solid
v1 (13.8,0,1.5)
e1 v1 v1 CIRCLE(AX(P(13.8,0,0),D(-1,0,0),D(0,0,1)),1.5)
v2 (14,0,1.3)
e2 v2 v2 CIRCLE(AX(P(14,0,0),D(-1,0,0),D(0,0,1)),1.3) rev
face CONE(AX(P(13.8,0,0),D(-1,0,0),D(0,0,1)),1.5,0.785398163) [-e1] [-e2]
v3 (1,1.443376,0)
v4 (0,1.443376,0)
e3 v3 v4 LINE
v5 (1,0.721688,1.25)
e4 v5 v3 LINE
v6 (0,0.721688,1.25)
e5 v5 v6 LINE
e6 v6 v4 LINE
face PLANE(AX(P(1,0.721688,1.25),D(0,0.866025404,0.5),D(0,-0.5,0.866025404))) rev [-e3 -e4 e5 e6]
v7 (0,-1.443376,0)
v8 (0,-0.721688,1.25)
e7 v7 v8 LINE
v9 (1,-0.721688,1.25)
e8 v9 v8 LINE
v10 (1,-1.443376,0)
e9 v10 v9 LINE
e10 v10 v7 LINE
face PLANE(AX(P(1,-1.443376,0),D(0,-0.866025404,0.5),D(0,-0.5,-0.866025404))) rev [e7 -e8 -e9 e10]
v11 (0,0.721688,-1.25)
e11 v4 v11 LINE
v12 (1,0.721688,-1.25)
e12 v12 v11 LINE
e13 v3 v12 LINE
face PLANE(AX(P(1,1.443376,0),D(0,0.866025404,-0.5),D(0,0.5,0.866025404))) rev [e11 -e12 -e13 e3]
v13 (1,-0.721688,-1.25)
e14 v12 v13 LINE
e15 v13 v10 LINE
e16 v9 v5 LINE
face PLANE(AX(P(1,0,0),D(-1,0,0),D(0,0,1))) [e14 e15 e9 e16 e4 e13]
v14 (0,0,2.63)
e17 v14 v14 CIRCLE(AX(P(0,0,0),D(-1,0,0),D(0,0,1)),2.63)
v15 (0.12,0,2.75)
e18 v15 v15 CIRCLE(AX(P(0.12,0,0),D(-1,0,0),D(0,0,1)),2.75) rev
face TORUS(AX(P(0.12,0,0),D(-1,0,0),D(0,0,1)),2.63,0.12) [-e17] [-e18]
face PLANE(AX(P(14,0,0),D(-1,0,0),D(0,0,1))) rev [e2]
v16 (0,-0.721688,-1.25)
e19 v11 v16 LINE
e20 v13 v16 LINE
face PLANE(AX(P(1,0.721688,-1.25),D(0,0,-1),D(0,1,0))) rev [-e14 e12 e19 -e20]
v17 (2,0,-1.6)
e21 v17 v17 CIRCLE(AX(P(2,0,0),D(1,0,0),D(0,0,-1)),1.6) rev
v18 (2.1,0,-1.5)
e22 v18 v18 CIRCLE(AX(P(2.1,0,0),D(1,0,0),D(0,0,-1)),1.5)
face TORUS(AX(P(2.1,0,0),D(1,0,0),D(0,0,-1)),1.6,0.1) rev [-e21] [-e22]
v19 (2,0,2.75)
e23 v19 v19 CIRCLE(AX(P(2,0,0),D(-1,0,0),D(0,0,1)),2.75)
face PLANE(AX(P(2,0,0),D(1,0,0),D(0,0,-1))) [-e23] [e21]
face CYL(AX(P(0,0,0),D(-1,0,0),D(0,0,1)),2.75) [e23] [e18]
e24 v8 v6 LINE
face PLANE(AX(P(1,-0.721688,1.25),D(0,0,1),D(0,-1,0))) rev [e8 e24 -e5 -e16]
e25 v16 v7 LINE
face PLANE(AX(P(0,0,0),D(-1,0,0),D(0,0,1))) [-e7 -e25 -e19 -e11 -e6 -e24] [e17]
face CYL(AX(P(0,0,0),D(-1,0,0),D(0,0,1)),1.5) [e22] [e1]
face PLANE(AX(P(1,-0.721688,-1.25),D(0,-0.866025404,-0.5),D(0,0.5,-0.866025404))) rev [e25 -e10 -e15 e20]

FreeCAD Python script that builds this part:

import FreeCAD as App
import Part
import Sketcher

V = App.Vector
Q = App.Units.Quantity


def edges_at(feature, points):
    """Names of the edges that pass closest to the given points."""
    edges = feature.Shape.Edges
    near = lambda p: min(range(len(edges)), key=lambda i: edges[i].distToShape(Part.Vertex(*p))[0])
    return sorted({f"Edge{near(p) + 1}" for p in points})

doc = App.newDocument("Part")
params = doc.addObject("Spreadsheet::Sheet", "Params")
for row, (alias, value) in enumerate([
    ("sketch1_width", "12 mm"),
    ("sketch1_width2", "2 mm"),
    ("sketch1_height", "1.5 mm"),
    ("sketch1_height2", "1.25 mm"),
    ("revolution_angle", "360 deg"),
    ("fillet_radius", "0.1 mm"),
    ("fillet2_radius", "0.12 mm"),
    ("chamfer_size", "0.2 mm"),
    ("pocket1_length", "1 mm"),
], start=1):
    params.set(f"A{row}", alias)
    params.set(f"B{row}", "=" + value)
    params.setAlias(f"B{row}", alias)

body = doc.addObject("PartDesign::Body", "Body")

sketch1 = doc.addObject("Sketcher::SketchObject", "Sketch")
body.addObject(sketch1)
sketch1.AttachmentSupport = (doc.XY_Plane, [""])
sketch1.MapMode = "FlatFace"
sketch1.addGeometry([
    Part.LineSegment(V(14, 0, 0), V(14, 1.5, 0)),
    Part.LineSegment(V(14, 1.5, 0), V(2, 1.5, 0)),
    Part.LineSegment(V(2, 1.5, 0), V(2, 2.8, 0)),
    Part.LineSegment(V(2, 2.8, 0), V(0, 2.8, 0)),
    Part.LineSegment(V(0, 2.8, 0), V(0, 0, 0)),
    Part.LineSegment(V(0, 0, 0), V(14, 0, 0)),
], False)
sketch1.addConstraint([
    Sketcher.Constraint("Coincident", 0, 2, 1, 1),
    Sketcher.Constraint("Coincident", 1, 2, 2, 1),
    Sketcher.Constraint("Coincident", 2, 2, 3, 1),
    Sketcher.Constraint("Coincident", 3, 2, 4, 1),
    Sketcher.Constraint("Coincident", 4, 2, 5, 1),
    Sketcher.Constraint("Coincident", 5, 2, 0, 1),
    Sketcher.Constraint("Vertical", 0),
    Sketcher.Constraint("Horizontal", 1),
    Sketcher.Constraint("Vertical", 2),
    Sketcher.Constraint("Horizontal", 3),
    Sketcher.Constraint("Vertical", 4),
    Sketcher.Constraint("Horizontal", 5),
    Sketcher.Constraint("Coincident", 4, 2, -1, 1),
    Sketcher.Constraint("DistanceX", 1, 2, 1, 1, 12.0),
    Sketcher.Constraint("DistanceX", 3, 2, 3, 1, 2.0),
    Sketcher.Constraint("DistanceY", 0, 1, 0, 2, 1.5),
    Sketcher.Constraint("DistanceY", 2, 1, 2, 2, 1.25),
])
sketch1.setExpression("Constraints[13]", "Params.sketch1_width")
sketch1.setExpression("Constraints[14]", "Params.sketch1_width2")
sketch1.setExpression("Constraints[15]", "Params.sketch1_height")
sketch1.setExpression("Constraints[16]", "Params.sketch1_height2")
revolution = doc.addObject("PartDesign::Revolution", "Revolution")
body.addObject(revolution)
revolution.Profile = sketch1
revolution.ReferenceAxis = (sketch1, ["H_Axis"])
revolution.setExpression("Angle", "Params.revolution_angle")
doc.recompute()

fillet = doc.addObject("PartDesign::Fillet", "Fillet")
body.addObject(fillet)
fillet.Base = (revolution, edges_at(revolution, [(2, 0, -1.5)]))
fillet.setExpression("Radius", "Params.fillet_radius")
doc.recompute()

fillet2 = doc.addObject("PartDesign::Fillet", "Fillet001")
body.addObject(fillet2)
fillet2.Base = (fillet, edges_at(fillet, [(0, 0, -2.75)]))
fillet2.setExpression("Radius", "Params.fillet2_radius")
doc.recompute()

chamfer = doc.addObject("PartDesign::Chamfer", "Chamfer")
body.addObject(chamfer)
chamfer.Base = (fillet2, edges_at(fillet2, [(14, 0, -1.5)]))
chamfer.setExpression("Size", "Params.chamfer_size")

sketch2 = doc.addObject("Sketcher::SketchObject", "Sketch001")
body.addObject(sketch2)
sketch2.AttachmentSupport = (doc.YZ_Plane, [""])
sketch2.MapMode = "FlatFace"
sketch2.addGeometry([
    Part.LineSegment(V(1.4, 0, 0), V(0.7, -1.2, 0)),
    Part.LineSegment(V(0.7, -1.2, 0), V(-0.7, -1.2, 0)),
    Part.LineSegment(V(-0.7, -1.2, 0), V(-1.4, 0, 0)),
    Part.LineSegment(V(-1.4, 0, 0), V(-0.7, 1.2, 0)),
    Part.LineSegment(V(-0.7, 1.2, 0), V(0.7, 1.2, 0)),
    Part.LineSegment(V(0.7, 1.2, 0), V(1.4, 0, 0)),
], False)
sketch2.addConstraint([
    Sketcher.Constraint("Coincident", 0, 2, 1, 1),
    Sketcher.Constraint("Coincident", 1, 2, 2, 1),
    Sketcher.Constraint("Coincident", 2, 2, 3, 1),
    Sketcher.Constraint("Coincident", 3, 2, 4, 1),
    Sketcher.Constraint("Coincident", 4, 2, 5, 1),
    Sketcher.Constraint("Coincident", 5, 2, 0, 1),
    Sketcher.Constraint("Horizontal", 1),
    Sketcher.Constraint("Horizontal", 4),
    Sketcher.Constraint("Symmetric", 0, 2, 3, 2, -1, 1),
    Sketcher.Constraint("Symmetric", 2, 2, 5, 2, -1, 1),
    Sketcher.Constraint("PointOnObject", 2, 2, -1),
    Sketcher.Constraint("Parallel", 2, 5),
    Sketcher.Constraint("Vertical", 1, 2, 3, 2),
    Sketcher.Constraint("Angle", 0, Q("-120 deg")),
    Sketcher.Constraint("DistanceY", 1, 2, 3, 2, 2.5),
    Sketcher.Constraint("DistanceX", 1, 2, 1, 1, 1.443376),
])
pocket1 = doc.addObject("PartDesign::Pocket", "Pocket")
body.addObject(pocket1)
pocket1.Profile = sketch2
pocket1.setExpression("Length", "Params.pocket1_length")
pocket1.Reversed = True

doc.recompute()
